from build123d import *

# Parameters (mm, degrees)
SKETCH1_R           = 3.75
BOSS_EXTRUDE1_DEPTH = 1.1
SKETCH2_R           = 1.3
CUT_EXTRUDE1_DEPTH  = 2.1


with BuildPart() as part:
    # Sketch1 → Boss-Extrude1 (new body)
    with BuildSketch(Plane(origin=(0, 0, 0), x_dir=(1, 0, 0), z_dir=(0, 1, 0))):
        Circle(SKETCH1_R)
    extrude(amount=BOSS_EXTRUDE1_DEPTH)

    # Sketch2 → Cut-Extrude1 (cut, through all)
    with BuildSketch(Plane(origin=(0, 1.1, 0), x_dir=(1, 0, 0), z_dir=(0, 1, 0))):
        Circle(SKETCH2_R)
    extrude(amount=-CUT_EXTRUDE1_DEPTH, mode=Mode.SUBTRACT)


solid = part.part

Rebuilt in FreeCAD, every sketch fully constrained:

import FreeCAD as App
import Part
import Sketcher

V = App.Vector

doc = App.newDocument("Part")
params = doc.addObject("Spreadsheet::Sheet", "Params")
for row, (alias, value) in enumerate([
    ("sketch1_diameter", "7.5 mm"),
    ("pad1_length", "1.1 mm"),
    ("sketch2_diameter", "2.6 mm"),
], start=1):
    params.set(f"A{row}", alias)
    params.set(f"B{row}", "=" + value)
    params.setAlias(f"B{row}", alias)

body = doc.addObject("PartDesign::Body", "Body")

sketch1 = body.newObject("Sketcher::SketchObject", "Sketch")
sketch1.AttachmentSupport = (doc.getObject("XZ_Plane"), [""])
sketch1.MapMode = "FlatFace"
sketch1.addGeometry(Part.Circle(V(0, 0, 0), V(0, 0, 1), 3.75), False)
sketch1.addConstraint([
    Sketcher.Constraint("Coincident", 0, 3, -1, 1),
    Sketcher.Constraint("Diameter", 0, 7.5),
])
sketch1.setExpression("Constraints[1]", "Params.sketch1_diameter")
pad1 = body.newObject("PartDesign::Pad", "Pad")
pad1.Profile = sketch1
pad1.setExpression("Length", "Params.pad1_length")
pad1.Reversed = True

sketch2 = body.newObject("Sketcher::SketchObject", "Sketch001")
sketch2.AttachmentSupport = (doc.getObject("XZ_Plane"), [""])
sketch2.MapMode = "FlatFace"
sketch2.AttachmentOffset = App.Placement(V(0, 0, -1.1), App.Rotation())
sketch2.addGeometry(Part.Circle(V(0, 0, 0), V(0, 0, 1), 1.3), False)
sketch2.addConstraint([
    Sketcher.Constraint("Coincident", 0, 3, -1, 1),
    Sketcher.Constraint("Diameter", 0, 2.6),
])
sketch2.setExpression("Constraints[1]", "Params.sketch2_diameter")
pocket1 = body.newObject("PartDesign::Pocket", "Pocket")
pocket1.Profile = sketch2
pocket1.Type = "ThroughAll"
pocket1.Reversed = True

doc.recompute()
